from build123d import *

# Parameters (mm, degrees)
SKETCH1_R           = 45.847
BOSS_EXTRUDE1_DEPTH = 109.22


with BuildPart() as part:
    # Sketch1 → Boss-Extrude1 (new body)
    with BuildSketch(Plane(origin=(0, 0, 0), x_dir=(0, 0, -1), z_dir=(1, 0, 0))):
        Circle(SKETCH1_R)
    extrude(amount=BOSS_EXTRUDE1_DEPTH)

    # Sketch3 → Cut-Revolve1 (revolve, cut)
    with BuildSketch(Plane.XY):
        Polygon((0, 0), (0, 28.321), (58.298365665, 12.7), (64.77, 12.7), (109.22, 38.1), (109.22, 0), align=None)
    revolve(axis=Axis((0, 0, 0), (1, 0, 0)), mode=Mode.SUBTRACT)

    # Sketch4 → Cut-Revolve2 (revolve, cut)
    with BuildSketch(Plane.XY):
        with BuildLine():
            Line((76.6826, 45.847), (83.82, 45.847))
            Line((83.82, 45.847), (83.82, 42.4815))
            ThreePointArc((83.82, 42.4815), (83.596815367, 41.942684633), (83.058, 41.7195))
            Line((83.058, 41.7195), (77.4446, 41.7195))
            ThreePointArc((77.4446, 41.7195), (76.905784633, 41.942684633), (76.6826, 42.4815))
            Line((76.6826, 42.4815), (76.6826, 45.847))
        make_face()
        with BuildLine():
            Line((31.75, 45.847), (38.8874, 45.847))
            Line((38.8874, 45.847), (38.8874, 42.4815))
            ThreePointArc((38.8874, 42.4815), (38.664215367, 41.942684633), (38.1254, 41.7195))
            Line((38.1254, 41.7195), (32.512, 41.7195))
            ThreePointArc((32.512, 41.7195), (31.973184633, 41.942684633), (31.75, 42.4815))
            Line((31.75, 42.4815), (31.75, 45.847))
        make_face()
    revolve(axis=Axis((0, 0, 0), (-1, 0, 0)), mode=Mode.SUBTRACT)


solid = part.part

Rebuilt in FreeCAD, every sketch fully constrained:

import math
import FreeCAD as App
import Part
import Sketcher
Q = App.Units.Quantity

doc = App.newDocument("Part")
body = doc.addObject("PartDesign::Body", "Body")

# Sketch on YZ plane
sketch1 = body.newObject("Sketcher::SketchObject", "Sketch")
sketch1.AttachmentSupport = (doc.getObject("YZ_Plane"), [""])
sketch1.MapMode = "FlatFace"
sketch1.addGeometry(Part.Circle(App.Vector(0, 0, 0), App.Vector(0, 0, 1), 45.847), False)
sketch1.addConstraint(Sketcher.Constraint("Coincident", 0, 3, -1, 1))
sketch1.addConstraint(Sketcher.Constraint("Diameter", 0, Q("3.61 in")))
pad1 = body.newObject("PartDesign::Pad", "Pad")
pad1.Profile = sketch1
pad1.Length = Q("4.3 in")

# Sketch on XY plane
sketch2 = body.newObject("Sketcher::SketchObject", "Sketch001")
sketch2.AttachmentSupport = (doc.getObject("XY_Plane"), [""])
sketch2.MapMode = "FlatFace"
sketch2.addGeometry(Part.LineSegment(App.Vector(0, 28.321, 0), App.Vector(0, 0, 0)), False)
sketch2.addGeometry(Part.LineSegment(App.Vector(0, 0, 0), App.Vector(109.22, 0, 0)), False)
sketch2.addGeometry(Part.LineSegment(App.Vector(109.22, 0, 0), App.Vector(109.22, 38.1, 0)), False)
sketch2.addGeometry(Part.LineSegment(App.Vector(109.22, 38.1, 0), App.Vector(64.77, 12.7, 0)), False)
sketch2.addGeometry(Part.LineSegment(App.Vector(64.77, 12.7, 0), App.Vector(58.298366, 12.7, 0)), False)
sketch2.addGeometry(Part.LineSegment(App.Vector(58.298366, 12.7, 0), App.Vector(0, 28.321, 0)), False)
sketch2.addConstraint(Sketcher.Constraint("Coincident", 0, 2, 1, 1))
sketch2.addConstraint(Sketcher.Constraint("Coincident", 1, 2, 2, 1))
sketch2.addConstraint(Sketcher.Constraint("Coincident", 2, 2, 3, 1))
sketch2.addConstraint(Sketcher.Constraint("Coincident", 3, 2, 4, 1))
sketch2.addConstraint(Sketcher.Constraint("Coincident", 4, 2, 5, 1))
sketch2.addConstraint(Sketcher.Constraint("Coincident", 5, 2, 0, 1))
sketch2.addConstraint(Sketcher.Constraint("Vertical", 0))
sketch2.addConstraint(Sketcher.Constraint("Horizontal", 1))
sketch2.addConstraint(Sketcher.Constraint("Vertical", 2))
sketch2.addConstraint(Sketcher.Constraint("Horizontal", 4))
sketch2.addConstraint(Sketcher.Constraint("Coincident", 0, 2, -1, 1))
sketch2.addConstraint(Sketcher.Constraint("DistanceX", 1, 1, 1, 2, Q("4.3 in")))
sketch2.addConstraint(Sketcher.Constraint("DistanceY", 2, 1, 2, 2, Q("1.5 in")))
sketch2.addConstraint(Sketcher.Constraint("Angle", 5, Q("165 deg")))
sketch2.addConstraint(Sketcher.Constraint("DistanceY", 3, 2, 2, 2, Q("1 in")))
sketch2.addConstraint(Sketcher.Constraint("DistanceY", 0, 2, 0, 1, Q("1.115 in")))
sketch2.addConstraint(Sketcher.Constraint("DistanceX", -1, 1, 3, 2, Q("2.55 in")))
groove = body.newObject("PartDesign::Groove", "Groove")
groove.Profile = sketch2
groove.ReferenceAxis = (sketch2, ["H_Axis"])
groove.Angle = 360

# Sketch on XY plane
sketch3 = body.newObject("Sketcher::SketchObject", "Sketch002")
sketch3.AttachmentSupport = (doc.getObject("XY_Plane"), [""])
sketch3.MapMode = "FlatFace"
sketch3.addGeometry(Part.LineSegment(App.Vector(83.82, 45.847, 0), App.Vector(76.6826, 45.847, 0)), False)
sketch3.addGeometry(Part.LineSegment(App.Vector(76.6826, 45.847, 0), App.Vector(76.6826, 42.4815, 0)), False)
sketch3.addGeometry(Part.ArcOfCircle(Part.Circle(App.Vector(77.4446, 42.4815, 0), App.Vector(0, 0, 1), 0.762), math.radians(-180), math.radians(-90)), False)
sketch3.addGeometry(Part.LineSegment(App.Vector(77.4446, 41.7195, 0), App.Vector(83.058, 41.7195, 0)), False)
sketch3.addGeometry(Part.ArcOfCircle(Part.Circle(App.Vector(83.058, 42.4815, 0), App.Vector(0, 0, 1), 0.762), math.radians(-90), math.radians(0)), False)
sketch3.addGeometry(Part.LineSegment(App.Vector(83.82, 42.4815, 0), App.Vector(83.82, 45.847, 0)), False)
sketch3.addGeometry(Part.LineSegment(App.Vector(38.8874, 45.847, 0), App.Vector(31.75, 45.847, 0)), False)
sketch3.addGeometry(Part.LineSegment(App.Vector(31.75, 45.847, 0), App.Vector(31.75, 42.4815, 0)), False)
sketch3.addGeometry(Part.ArcOfCircle(Part.Circle(App.Vector(32.512, 42.4815, 0), App.Vector(0, 0, 1), 0.762), math.radians(-180), math.radians(-90)), False)
sketch3.addGeometry(Part.LineSegment(App.Vector(32.512, 41.7195, 0), App.Vector(38.1254, 41.7195, 0)), False)
sketch3.addGeometry(Part.ArcOfCircle(Part.Circle(App.Vector(38.1254, 42.4815, 0), App.Vector(0, 0, 1), 0.762), math.radians(-90), math.radians(0)), False)
sketch3.addGeometry(Part.LineSegment(App.Vector(38.8874, 42.4815, 0), App.Vector(38.8874, 45.847, 0)), False)
sketch3.addConstraint(Sketcher.Constraint("Coincident", 0, 2, 1, 1))
sketch3.addConstraint(Sketcher.Constraint("Tangent", 1, 2, 2, 1))
sketch3.addConstraint(Sketcher.Constraint("Tangent", 2, 2, 3, 1))
sketch3.addConstraint(Sketcher.Constraint("Tangent", 3, 2, 4, 1))
sketch3.addConstraint(Sketcher.Constraint("Tangent", 4, 2, 5, 1))
sketch3.addConstraint(Sketcher.Constraint("Coincident", 5, 2, 0, 1))
sketch3.addConstraint(Sketcher.Constraint("Coincident", 6, 2, 7, 1))
sketch3.addConstraint(Sketcher.Constraint("Tangent", 7, 2, 8, 1))
sketch3.addConstraint(Sketcher.Constraint("Tangent", 8, 2, 9, 1))
sketch3.addConstraint(Sketcher.Constraint("Tangent", 9, 2, 10, 1))
sketch3.addConstraint(Sketcher.Constraint("Tangent", 10, 2, 11, 1))
sketch3.addConstraint(Sketcher.Constraint("Coincident", 11, 2, 6, 1))
sketch3.addConstraint(Sketcher.Constraint("Horizontal", 0))
sketch3.addConstraint(Sketcher.Constraint("Vertical", 1))
sketch3.addConstraint(Sketcher.Constraint("Horizontal", 3))
sketch3.addConstraint(Sketcher.Constraint("Vertical", 5))
sketch3.addConstraint(Sketcher.Constraint("Horizontal", 6))
sketch3.addConstraint(Sketcher.Constraint("Vertical", 7))
sketch3.addConstraint(Sketcher.Constraint("Horizontal", 9))
sketch3.addConstraint(Sketcher.Constraint("Vertical", 11))
sketch3.addConstraint(Sketcher.Constraint("Equal", 2, 4))
sketch3.addConstraint(Sketcher.Constraint("Equal", 4, 8))
sketch3.addConstraint(Sketcher.Constraint("Equal", 8, 10))
sketch3.addConstraint(Sketcher.Constraint("Horizontal", 4, 3, 8, 3))
sketch3.addConstraint(Sketcher.Constraint("Horizontal", 5, 2, 6, 2))
sketch3.addConstraint(Sketcher.Constraint("Equal", 0, 6))
sketch3.addConstraint(Sketcher.Constraint("Radius", 2, Q("0.03 in")))
sketch3.addConstraint(Sketcher.Constraint("DistanceX", -1, 1, 4, 2, Q("3.3 in")))
sketch3.addConstraint(Sketcher.Constraint("DistanceX", 0, 2, 0, 1, Q("0.281 in")))
sketch3.addConstraint(Sketcher.Constraint("DistanceX", -1, 1, 8, 3, Q("1.28 in")))
sketch3.addConstraint(Sketcher.Constraint("DistanceY", 1, 2, 1, 1, Q("0.1325 in")))
sketch3.addConstraint(Sketcher.Constraint("DistanceY", -1, 1, 0, 2, Q("1.805 in")))
groove2 = body.newObject("PartDesign::Groove", "Groove001")
groove2.Profile = sketch3
groove2.ReferenceAxis = (sketch3, ["H_Axis"])
groove2.Angle = 360

doc.recompute()
